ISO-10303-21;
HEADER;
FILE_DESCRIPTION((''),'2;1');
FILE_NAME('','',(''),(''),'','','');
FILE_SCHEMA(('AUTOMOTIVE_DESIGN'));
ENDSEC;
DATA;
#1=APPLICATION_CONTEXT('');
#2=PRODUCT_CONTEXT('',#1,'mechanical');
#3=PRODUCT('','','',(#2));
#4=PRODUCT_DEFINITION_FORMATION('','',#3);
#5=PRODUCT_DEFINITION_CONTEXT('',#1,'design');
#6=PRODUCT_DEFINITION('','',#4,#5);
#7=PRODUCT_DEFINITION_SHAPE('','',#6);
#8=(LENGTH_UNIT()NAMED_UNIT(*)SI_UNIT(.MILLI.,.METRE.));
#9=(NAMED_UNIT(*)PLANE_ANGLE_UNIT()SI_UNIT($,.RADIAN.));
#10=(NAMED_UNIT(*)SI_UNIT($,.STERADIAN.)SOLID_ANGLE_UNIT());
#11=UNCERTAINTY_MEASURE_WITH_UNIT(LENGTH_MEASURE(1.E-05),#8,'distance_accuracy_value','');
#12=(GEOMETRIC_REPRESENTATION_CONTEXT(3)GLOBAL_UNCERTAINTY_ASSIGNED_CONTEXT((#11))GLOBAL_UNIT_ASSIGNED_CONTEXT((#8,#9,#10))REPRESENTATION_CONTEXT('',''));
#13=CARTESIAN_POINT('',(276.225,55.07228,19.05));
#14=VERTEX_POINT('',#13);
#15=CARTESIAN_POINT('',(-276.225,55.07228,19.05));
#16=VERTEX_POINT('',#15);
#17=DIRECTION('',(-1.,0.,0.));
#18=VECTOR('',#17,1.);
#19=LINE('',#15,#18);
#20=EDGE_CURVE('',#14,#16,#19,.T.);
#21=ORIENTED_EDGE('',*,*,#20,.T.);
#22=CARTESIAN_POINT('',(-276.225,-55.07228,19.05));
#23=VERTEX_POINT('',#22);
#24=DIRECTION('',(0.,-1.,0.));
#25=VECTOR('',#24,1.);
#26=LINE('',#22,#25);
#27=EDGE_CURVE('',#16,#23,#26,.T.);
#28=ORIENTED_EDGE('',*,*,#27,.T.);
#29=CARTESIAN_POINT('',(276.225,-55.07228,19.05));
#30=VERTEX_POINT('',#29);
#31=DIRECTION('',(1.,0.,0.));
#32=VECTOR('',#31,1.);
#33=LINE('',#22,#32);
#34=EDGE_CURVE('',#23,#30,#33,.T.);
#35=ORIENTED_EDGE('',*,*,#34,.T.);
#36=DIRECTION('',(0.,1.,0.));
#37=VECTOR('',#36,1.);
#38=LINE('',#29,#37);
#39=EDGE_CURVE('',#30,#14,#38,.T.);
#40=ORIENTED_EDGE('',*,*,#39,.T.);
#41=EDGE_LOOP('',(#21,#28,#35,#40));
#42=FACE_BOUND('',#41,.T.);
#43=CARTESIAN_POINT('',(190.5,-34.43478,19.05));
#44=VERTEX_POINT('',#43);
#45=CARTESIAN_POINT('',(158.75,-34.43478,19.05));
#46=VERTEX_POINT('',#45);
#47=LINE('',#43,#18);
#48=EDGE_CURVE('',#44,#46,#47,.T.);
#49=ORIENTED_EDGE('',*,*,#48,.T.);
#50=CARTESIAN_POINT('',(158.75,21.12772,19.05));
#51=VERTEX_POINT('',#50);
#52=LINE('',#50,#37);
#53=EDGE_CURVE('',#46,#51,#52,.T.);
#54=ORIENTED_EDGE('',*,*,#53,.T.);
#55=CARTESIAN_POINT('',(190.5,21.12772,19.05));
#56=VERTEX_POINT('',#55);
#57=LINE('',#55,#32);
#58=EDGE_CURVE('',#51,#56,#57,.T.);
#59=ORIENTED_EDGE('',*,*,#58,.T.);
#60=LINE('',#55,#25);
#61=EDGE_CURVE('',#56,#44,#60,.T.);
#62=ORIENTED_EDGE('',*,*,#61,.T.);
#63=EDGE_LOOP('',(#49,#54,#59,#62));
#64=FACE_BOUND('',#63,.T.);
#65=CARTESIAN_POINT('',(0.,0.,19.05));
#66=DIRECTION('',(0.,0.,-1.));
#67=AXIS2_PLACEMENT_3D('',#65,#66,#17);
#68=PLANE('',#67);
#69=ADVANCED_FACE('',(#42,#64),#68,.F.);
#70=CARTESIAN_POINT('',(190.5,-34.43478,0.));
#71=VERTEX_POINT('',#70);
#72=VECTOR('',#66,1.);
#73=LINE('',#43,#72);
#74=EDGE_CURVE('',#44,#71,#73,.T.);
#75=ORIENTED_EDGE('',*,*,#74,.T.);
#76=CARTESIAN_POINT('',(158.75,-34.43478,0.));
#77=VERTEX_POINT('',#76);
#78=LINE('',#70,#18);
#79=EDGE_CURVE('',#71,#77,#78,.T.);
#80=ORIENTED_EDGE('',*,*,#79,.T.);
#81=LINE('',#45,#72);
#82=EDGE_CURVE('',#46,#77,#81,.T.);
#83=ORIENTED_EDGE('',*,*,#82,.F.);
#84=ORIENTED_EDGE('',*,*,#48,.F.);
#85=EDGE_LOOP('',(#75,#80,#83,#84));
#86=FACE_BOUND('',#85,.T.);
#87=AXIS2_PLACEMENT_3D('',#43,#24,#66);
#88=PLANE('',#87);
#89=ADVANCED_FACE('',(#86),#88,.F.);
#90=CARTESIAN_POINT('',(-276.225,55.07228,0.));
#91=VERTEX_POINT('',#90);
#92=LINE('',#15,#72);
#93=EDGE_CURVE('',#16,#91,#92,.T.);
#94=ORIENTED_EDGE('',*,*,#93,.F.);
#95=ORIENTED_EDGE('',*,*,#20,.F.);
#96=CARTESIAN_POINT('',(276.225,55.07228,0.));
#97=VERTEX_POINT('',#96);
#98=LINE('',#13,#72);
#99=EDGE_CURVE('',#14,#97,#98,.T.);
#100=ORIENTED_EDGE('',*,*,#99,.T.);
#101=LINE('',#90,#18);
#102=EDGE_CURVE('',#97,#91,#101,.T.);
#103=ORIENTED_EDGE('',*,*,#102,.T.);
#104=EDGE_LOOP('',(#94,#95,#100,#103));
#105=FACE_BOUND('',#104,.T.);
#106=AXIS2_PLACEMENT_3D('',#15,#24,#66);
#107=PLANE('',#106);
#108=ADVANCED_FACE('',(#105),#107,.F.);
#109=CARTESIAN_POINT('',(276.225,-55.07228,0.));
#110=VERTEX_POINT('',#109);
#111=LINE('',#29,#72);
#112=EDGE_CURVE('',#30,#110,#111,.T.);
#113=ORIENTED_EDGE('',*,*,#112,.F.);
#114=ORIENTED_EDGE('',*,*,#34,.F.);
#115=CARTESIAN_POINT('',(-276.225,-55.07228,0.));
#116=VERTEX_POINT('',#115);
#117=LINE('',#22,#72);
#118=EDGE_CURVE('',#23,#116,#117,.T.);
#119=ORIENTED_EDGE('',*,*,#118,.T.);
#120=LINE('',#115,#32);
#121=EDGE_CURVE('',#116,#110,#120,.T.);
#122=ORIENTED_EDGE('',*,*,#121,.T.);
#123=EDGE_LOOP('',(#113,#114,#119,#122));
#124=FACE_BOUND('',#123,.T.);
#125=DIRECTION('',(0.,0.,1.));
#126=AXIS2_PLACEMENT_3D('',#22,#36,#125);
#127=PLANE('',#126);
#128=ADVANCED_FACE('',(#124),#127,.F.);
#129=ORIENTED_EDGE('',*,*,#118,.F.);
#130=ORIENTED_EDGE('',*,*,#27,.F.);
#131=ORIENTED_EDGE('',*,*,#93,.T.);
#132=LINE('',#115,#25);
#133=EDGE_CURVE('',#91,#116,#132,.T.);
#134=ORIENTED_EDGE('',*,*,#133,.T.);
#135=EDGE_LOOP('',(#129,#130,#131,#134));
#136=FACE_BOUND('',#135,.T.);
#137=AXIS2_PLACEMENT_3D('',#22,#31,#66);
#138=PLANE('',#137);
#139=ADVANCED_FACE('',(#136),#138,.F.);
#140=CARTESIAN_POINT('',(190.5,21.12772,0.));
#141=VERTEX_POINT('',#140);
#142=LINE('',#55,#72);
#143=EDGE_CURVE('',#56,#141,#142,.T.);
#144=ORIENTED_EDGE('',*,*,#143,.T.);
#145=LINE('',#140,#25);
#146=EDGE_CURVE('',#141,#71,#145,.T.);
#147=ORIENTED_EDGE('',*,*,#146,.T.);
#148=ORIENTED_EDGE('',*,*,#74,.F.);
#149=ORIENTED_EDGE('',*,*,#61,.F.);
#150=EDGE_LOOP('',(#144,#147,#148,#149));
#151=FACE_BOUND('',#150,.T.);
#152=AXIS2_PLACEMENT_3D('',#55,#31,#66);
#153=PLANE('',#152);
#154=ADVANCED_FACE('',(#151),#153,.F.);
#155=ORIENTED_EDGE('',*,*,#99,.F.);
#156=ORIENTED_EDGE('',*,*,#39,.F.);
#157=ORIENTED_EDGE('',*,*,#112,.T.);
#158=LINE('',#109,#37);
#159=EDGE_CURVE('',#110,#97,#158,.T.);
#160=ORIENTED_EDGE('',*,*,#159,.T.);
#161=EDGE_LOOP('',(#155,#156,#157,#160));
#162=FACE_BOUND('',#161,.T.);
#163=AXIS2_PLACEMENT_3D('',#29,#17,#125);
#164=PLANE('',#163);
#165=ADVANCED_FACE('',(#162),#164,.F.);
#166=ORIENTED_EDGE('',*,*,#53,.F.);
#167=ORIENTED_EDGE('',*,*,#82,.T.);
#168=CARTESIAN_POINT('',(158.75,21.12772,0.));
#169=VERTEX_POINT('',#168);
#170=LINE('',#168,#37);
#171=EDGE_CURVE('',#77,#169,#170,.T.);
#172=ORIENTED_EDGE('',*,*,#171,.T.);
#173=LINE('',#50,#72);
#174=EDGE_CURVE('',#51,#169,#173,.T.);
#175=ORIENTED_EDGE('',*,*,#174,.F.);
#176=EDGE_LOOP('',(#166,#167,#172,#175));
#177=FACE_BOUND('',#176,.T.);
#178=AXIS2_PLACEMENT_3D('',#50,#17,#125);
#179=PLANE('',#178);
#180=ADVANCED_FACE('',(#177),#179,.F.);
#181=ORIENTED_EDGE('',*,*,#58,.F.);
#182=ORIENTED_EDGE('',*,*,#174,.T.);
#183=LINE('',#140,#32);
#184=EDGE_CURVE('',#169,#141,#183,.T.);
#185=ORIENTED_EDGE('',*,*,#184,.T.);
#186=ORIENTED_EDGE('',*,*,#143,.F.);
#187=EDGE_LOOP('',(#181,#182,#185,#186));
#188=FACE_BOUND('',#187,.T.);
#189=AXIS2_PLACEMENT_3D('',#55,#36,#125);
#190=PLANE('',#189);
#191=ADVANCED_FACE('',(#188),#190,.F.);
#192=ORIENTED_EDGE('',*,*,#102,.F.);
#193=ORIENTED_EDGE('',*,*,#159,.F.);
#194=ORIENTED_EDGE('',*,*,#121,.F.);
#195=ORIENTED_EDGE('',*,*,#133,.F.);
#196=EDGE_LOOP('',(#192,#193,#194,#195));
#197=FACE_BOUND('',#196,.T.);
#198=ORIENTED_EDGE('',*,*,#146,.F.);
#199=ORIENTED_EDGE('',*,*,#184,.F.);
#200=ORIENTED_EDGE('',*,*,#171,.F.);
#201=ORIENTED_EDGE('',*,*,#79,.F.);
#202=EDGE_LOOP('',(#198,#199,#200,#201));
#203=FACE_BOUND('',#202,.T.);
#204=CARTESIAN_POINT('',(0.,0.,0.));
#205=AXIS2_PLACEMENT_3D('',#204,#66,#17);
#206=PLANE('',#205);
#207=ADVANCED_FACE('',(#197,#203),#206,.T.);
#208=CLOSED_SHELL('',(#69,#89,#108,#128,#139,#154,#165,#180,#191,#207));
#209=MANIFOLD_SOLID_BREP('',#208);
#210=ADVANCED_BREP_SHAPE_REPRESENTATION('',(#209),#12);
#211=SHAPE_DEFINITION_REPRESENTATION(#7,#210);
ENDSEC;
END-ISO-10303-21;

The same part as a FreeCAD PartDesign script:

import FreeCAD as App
import Part
import Sketcher
from FreeCAD import Vector
Q = App.Units.Quantity

doc = App.newDocument("Part")
body = doc.addObject("PartDesign::Body", "Body")

# Sketch on XY plane
sketch1 = body.newObject("Sketcher::SketchObject", "Sketch")
sketch1.AttachmentSupport = (doc.getObject("XY_Plane"), [""])
sketch1.MapMode = "FlatFace"
sketch1.addGeometry([
    Part.LineSegment(Vector(-276, 55, 0), Vector(-276, -55, 0)),
    Part.LineSegment(Vector(-276, -55, 0), Vector(276, -55, 0)),
    Part.LineSegment(Vector(276, -55, 0), Vector(276, 55, 0)),
    Part.LineSegment(Vector(276, 55, 0), Vector(-276, 55, 0)),
], False)
sketch1.addConstraint([
    Sketcher.Constraint("Coincident", 0, 2, 1, 1),
    Sketcher.Constraint("Coincident", 1, 2, 2, 1),
    Sketcher.Constraint("Coincident", 2, 2, 3, 1),
    Sketcher.Constraint("Coincident", 3, 2, 0, 1),
    Sketcher.Constraint("Vertical", 0),
    Sketcher.Constraint("Horizontal", 1),
    Sketcher.Constraint("Vertical", 2),
    Sketcher.Constraint("Horizontal", 3),
    Sketcher.Constraint("Symmetric", 0, 2, 2, 2, -1, 1),
    Sketcher.Constraint("DistanceX", 1, 1, 1, 2, Q("21.75 in")),
    Sketcher.Constraint("DistanceY", 0, 2, 0, 1, Q("4.3364 in")),
])
pad1 = body.newObject("PartDesign::Pad", "Pad")
pad1.Profile = sketch1
pad1.Length = Q("0.75 in")

# Sketch on XY plane
sketch2 = body.newObject("Sketcher::SketchObject", "Sketch001")
sketch2.AttachmentSupport = (doc.getObject("XY_Plane"), [""])
sketch2.MapMode = "FlatFace"
sketch2.addGeometry([
    Part.LineSegment(Vector(190, 21, 0), Vector(190, -34, 0)),
    Part.LineSegment(Vector(190, -34, 0), Vector(159, -34, 0)),
    Part.LineSegment(Vector(159, -34, 0), Vector(159, 21, 0)),
    Part.LineSegment(Vector(159, 21, 0), Vector(190, 21, 0)),
], False)
sketch2.addConstraint([
    Sketcher.Constraint("Coincident", 0, 2, 1, 1),
    Sketcher.Constraint("Coincident", 1, 2, 2, 1),
    Sketcher.Constraint("Coincident", 2, 2, 3, 1),
    Sketcher.Constraint("Coincident", 3, 2, 0, 1),
    Sketcher.Constraint("Vertical", 0),
    Sketcher.Constraint("Horizontal", 1),
    Sketcher.Constraint("Vertical", 2),
    Sketcher.Constraint("Horizontal", 3),
    Sketcher.Constraint("DistanceX", 1, 2, 1, 1, Q("1.25 in")),
    Sketcher.Constraint("DistanceX", -1, 1, 0, 2, Q("7.5 in")),
    Sketcher.Constraint("DistanceY", 0, 2, 0, 1, Q("2.1875 in")),
    Sketcher.Constraint("DistanceY", 0, 2, -1, 1, Q("1.3557 in")),
])
pocket1 = body.newObject("PartDesign::Pocket", "Pocket")
pocket1.Profile = sketch2
pocket1.Type = "ThroughAll"
pocket1.Reversed = True

doc.recompute()
